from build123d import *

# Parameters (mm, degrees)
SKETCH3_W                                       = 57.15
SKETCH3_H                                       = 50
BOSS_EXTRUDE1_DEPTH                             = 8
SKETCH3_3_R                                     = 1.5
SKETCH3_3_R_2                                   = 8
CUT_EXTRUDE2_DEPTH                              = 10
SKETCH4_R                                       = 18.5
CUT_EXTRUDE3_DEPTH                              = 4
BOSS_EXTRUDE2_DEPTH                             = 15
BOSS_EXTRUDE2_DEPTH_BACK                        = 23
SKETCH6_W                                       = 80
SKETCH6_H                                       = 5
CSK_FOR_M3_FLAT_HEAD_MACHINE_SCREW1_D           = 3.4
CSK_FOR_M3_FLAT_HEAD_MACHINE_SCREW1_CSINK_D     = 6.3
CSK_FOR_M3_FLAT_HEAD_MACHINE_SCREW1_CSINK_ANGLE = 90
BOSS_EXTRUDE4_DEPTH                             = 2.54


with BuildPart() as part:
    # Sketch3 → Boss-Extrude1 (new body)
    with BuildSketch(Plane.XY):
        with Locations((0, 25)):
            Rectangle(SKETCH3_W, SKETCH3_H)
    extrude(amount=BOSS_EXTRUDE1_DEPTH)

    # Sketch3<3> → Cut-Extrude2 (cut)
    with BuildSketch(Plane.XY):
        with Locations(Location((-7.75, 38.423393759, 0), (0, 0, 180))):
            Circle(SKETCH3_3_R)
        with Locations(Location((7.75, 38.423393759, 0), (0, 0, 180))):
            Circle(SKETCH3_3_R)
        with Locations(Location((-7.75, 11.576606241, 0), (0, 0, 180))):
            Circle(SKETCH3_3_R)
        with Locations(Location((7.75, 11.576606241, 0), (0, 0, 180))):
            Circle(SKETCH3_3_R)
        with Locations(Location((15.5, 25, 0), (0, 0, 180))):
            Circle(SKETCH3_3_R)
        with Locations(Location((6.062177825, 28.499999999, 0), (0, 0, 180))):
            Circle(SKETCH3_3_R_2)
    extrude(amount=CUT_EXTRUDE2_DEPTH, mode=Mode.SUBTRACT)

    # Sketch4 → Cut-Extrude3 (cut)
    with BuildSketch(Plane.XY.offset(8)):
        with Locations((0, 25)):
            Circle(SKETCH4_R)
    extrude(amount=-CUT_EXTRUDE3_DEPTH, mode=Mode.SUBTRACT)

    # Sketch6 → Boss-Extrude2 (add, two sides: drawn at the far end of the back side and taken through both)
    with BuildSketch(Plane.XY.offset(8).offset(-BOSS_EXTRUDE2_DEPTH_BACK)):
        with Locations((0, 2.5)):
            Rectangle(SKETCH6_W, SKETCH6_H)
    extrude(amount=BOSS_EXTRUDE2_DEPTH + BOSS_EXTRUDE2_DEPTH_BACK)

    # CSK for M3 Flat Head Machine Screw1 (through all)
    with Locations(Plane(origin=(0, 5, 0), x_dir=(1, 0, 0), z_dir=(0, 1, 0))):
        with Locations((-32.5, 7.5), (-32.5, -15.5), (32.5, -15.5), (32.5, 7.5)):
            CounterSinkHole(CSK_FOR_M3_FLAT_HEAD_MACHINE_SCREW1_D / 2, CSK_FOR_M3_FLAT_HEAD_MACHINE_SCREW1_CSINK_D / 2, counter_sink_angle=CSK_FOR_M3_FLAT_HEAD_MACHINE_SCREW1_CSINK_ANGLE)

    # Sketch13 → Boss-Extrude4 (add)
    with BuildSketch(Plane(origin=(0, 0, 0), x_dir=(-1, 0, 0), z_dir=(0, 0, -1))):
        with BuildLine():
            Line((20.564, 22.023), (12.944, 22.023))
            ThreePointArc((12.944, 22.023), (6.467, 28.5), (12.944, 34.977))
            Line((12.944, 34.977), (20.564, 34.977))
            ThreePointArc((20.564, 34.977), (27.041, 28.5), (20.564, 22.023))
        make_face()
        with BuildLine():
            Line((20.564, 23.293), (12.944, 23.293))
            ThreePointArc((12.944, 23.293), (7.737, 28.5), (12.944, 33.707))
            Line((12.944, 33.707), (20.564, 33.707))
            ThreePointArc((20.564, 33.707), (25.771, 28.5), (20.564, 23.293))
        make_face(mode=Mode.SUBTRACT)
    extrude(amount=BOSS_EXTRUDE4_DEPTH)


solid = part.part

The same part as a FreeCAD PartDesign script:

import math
import FreeCAD as App
import Part
import Sketcher
Q = App.Units.Quantity

doc = App.newDocument("Part")
body = doc.addObject("PartDesign::Body", "Body")

# Sketch on XY plane
sketch1 = body.newObject("Sketcher::SketchObject", "Sketch")
sketch1.AttachmentSupport = (doc.getObject("XY_Plane"), [""])
sketch1.MapMode = "FlatFace"
sketch1.addGeometry([
    Part.LineSegment(App.Vector(-29, 50, 0), App.Vector(-29, 0, 0)),
    Part.LineSegment(App.Vector(-29, 0, 0), App.Vector(29, 0, 0)),
    Part.LineSegment(App.Vector(29, 0, 0), App.Vector(29, 50, 0)),
    Part.LineSegment(App.Vector(29, 50, 0), App.Vector(-29, 50, 0)),
], False)
sketch1.addConstraint([
    Sketcher.Constraint("Coincident", 0, 2, 1, 1),
    Sketcher.Constraint("Coincident", 1, 2, 2, 1),
    Sketcher.Constraint("Coincident", 2, 2, 3, 1),
    Sketcher.Constraint("Coincident", 3, 2, 0, 1),
    Sketcher.Constraint("Vertical", 0),
    Sketcher.Constraint("Horizontal", 1),
    Sketcher.Constraint("Vertical", 2),
    Sketcher.Constraint("Horizontal", 3),
    Sketcher.Constraint("Symmetric", 0, 2, 1, 2, -1, 1),
    Sketcher.Constraint("DistanceY", 0, 2, 0, 1, Q("50 mm")),
    Sketcher.Constraint("DistanceX", 1, 1, 1, 2, Q("57.15 mm")),
])
pad1 = body.newObject("PartDesign::Pad", "Pad")
pad1.Profile = sketch1
pad1.Length = 8

# Sketch on XY plane
sketch2 = body.newObject("Sketcher::SketchObject", "Sketch001")
sketch2.AttachmentSupport = (doc.getObject("XY_Plane"), [""])
sketch2.MapMode = "FlatFace"
sketch2.addGeometry([
    Part.Circle(App.Vector(-7.8, 38.4, 0), App.Vector(0, 0, 1), 1.5),  # 0
    Part.Circle(App.Vector(7.8, 38.4, 0), App.Vector(0, 0, 1), 1.5),  # 1
    Part.Circle(App.Vector(-7.8, 11.6, 0), App.Vector(0, 0, 1), 1.5),  # 2
    Part.Circle(App.Vector(7.8, 11.6, 0), App.Vector(0, 0, 1), 1.5),  # 3
    Part.Circle(App.Vector(15.5, 25, 0), App.Vector(0, 0, 1), 1.5),  # 4
    Part.Circle(App.Vector(6.1, 28.5, 0), App.Vector(0, 0, 1), 8),  # 5
], False)
sketch2.addConstraint([
    Sketcher.Constraint("Equal", 0, 1),
    Sketcher.Constraint("Equal", 1, 2),
    Sketcher.Constraint("Equal", 2, 3),
    Sketcher.Constraint("Equal", 3, 4),
    Sketcher.Constraint("Symmetric", 0, 3, 1, 3, -2),
    Sketcher.Constraint("Symmetric", 2, 3, 3, 3, -2),
    Sketcher.Constraint("Vertical", 0, 3, 2, 3),
    Sketcher.Constraint("Diameter", 0, Q("3 mm")),
    Sketcher.Constraint("Diameter", 5, Q("16 mm")),
    Sketcher.Constraint("DistanceY", -1, 1, 4, 3, Q("25 mm")),
    Sketcher.Constraint("DistanceX", -1, 1, 4, 3, Q("15.5 mm")),
    Sketcher.Constraint("DistanceY", -1, 1, 5, 3, Q("28.5 mm")),
    Sketcher.Constraint("DistanceX", 0, 3, 1, 3, Q("15.5 mm")),
    Sketcher.Constraint("DistanceY", -1, 1, 0, 3, Q("38.423394 mm")),
    Sketcher.Constraint("DistanceY", -1, 1, 2, 3, Q("11.576606 mm")),
    Sketcher.Constraint("DistanceX", -1, 1, 5, 3, Q("6.062178 mm")),
])
pocket1 = body.newObject("PartDesign::Pocket", "Pocket")
pocket1.Profile = sketch2
pocket1.Length = 10
pocket1.Reversed = True

# Sketch on XY plane
sketch3 = body.newObject("Sketcher::SketchObject", "Sketch002")
sketch3.AttachmentSupport = (doc.getObject("XY_Plane"), [""])
sketch3.MapMode = "FlatFace"
sketch3.AttachmentOffset = App.Placement(App.Vector(0, 0, 8), App.Rotation())
sketch3.addGeometry(Part.Circle(App.Vector(0, 25, 0), App.Vector(0, 0, 1), 18), False)
sketch3.addConstraint([
    Sketcher.Constraint("PointOnObject", 0, 3, -2),
    Sketcher.Constraint("Diameter", 0, Q("37 mm")),
    Sketcher.Constraint("DistanceY", -1, 1, 0, 3, Q("25 mm")),
])
pocket2 = body.newObject("PartDesign::Pocket", "Pocket001")
pocket2.Profile = sketch3
pocket2.Length = 4

# Sketch on XY plane
sketch4 = body.newObject("Sketcher::SketchObject", "Sketch003")
sketch4.AttachmentSupport = (doc.getObject("XY_Plane"), [""])
sketch4.MapMode = "FlatFace"
sketch4.AttachmentOffset = App.Placement(App.Vector(0, 0, 8), App.Rotation())
sketch4.addGeometry([
    Part.LineSegment(App.Vector(-40, 5, 0), App.Vector(-40, 0, 0)),
    Part.LineSegment(App.Vector(-40, 0, 0), App.Vector(40, 0, 0)),
    Part.LineSegment(App.Vector(40, 0, 0), App.Vector(40, 5, 0)),
    Part.LineSegment(App.Vector(40, 5, 0), App.Vector(-40, 5, 0)),
], False)
sketch4.addConstraint([
    Sketcher.Constraint("Coincident", 0, 2, 1, 1),
    Sketcher.Constraint("Coincident", 1, 2, 2, 1),
    Sketcher.Constraint("Coincident", 2, 2, 3, 1),
    Sketcher.Constraint("Coincident", 3, 2, 0, 1),
    Sketcher.Constraint("Vertical", 0),
    Sketcher.Constraint("Horizontal", 1),
    Sketcher.Constraint("Vertical", 2),
    Sketcher.Constraint("Horizontal", 3),
    Sketcher.Constraint("Symmetric", 0, 2, 1, 2, -1, 1),
    Sketcher.Constraint("DistanceX", 1, 1, 1, 2, Q("80 mm")),
    Sketcher.Constraint("DistanceY", 0, 2, 0, 1, Q("5 mm")),
])
pad2 = body.newObject("PartDesign::Pad", "Pad001")
pad2.Profile = sketch4
pad2.Type = "TwoLengths"
pad2.Length = 15
pad2.Length2 = 23

# Sketch on XZ plane
sketch5 = body.newObject("Sketcher::SketchObject", "Sketch004")
sketch5.AttachmentSupport = (doc.getObject("XZ_Plane"), [""])
sketch5.MapMode = "FlatFace"
sketch5.AttachmentOffset = App.Placement(App.Vector(0, 0, -5), App.Rotation())
sketch5.addGeometry([
    Part.Circle(App.Vector(-32.5, -7.5, 0), App.Vector(0, 0, 1), 1.7),
    Part.Circle(App.Vector(-32.5, 15.5, 0), App.Vector(0, 0, 1), 1.7),
    Part.Circle(App.Vector(32.5, 15.5, 0), App.Vector(0, 0, 1), 1.7),
    Part.Circle(App.Vector(32.5, -7.5, 0), App.Vector(0, 0, 1), 1.7),
], False)
sketch5.addConstraint([
    Sketcher.Constraint("Equal", 0, 1),
    Sketcher.Constraint("Equal", 1, 2),
    Sketcher.Constraint("Equal", 2, 3),
    Sketcher.Constraint("Symmetric", 1, 3, 2, 3, -2),
    Sketcher.Constraint("Symmetric", 0, 3, 3, 3, -2),
    Sketcher.Constraint("Vertical", 0, 3, 1, 3),
    Sketcher.Constraint("Diameter", 0, Q("3.4 mm")),
    Sketcher.Constraint("DistanceY", 0, 3, 1, 3, Q("23 mm")),
    Sketcher.Constraint("DistanceX", 1, 3, 2, 3, Q("65 mm")),
    Sketcher.Constraint("DistanceY", 0, 3, -1, 1, Q("7.5 mm")),
])
doc.recompute()
hole = body.newObject("PartDesign::Hole", "Hole")
hole.Profile = sketch5
hole.ThreadType = "None"
hole.Diameter = 3.4
hole.DepthType = "ThroughAll"
hole.HoleCutType = "Countersink"
hole.HoleCutDiameter = 6.3
hole.HoleCutCountersinkAngle = 90
hole.Reversed = True

# Sketch on XY plane
sketch6 = body.newObject("Sketcher::SketchObject", "Sketch005")
sketch6.AttachmentSupport = (doc.getObject("XY_Plane"), [""])
sketch6.MapMode = "FlatFace"
sketch6.addGeometry([
    Part.LineSegment(App.Vector(-13, 22, 0), App.Vector(-21, 22, 0)),  # 0
    Part.ArcOfCircle(Part.Circle(App.Vector(-21, 28, 0), App.Vector(0, 0, 1), 6), math.radians(90), math.radians(270)),  # 1
    Part.LineSegment(App.Vector(-21, 35, 0), App.Vector(-13, 35, 0)),  # 2
    Part.ArcOfCircle(Part.Circle(App.Vector(-13, 28, 0), App.Vector(0, 0, 1), 6), math.radians(-90), math.radians(90)),  # 3
    Part.LineSegment(App.Vector(-21, 23, 0), App.Vector(-13, 23, 0)),  # 4
    Part.ArcOfCircle(Part.Circle(App.Vector(-13, 28, 0), App.Vector(0, 0, 1), 5), math.radians(-90), math.radians(90)),  # 5
    Part.LineSegment(App.Vector(-13, 34, 0), App.Vector(-21, 34, 0)),  # 6
    Part.ArcOfCircle(Part.Circle(App.Vector(-21, 28, 0), App.Vector(0, 0, 1), 5), math.radians(90), math.radians(270)),  # 7
], False)
sketch6.addConstraint([
    Sketcher.Constraint("Tangent", 0, 2, 1, 2),
    Sketcher.Constraint("Tangent", 1, 1, 2, 1),
    Sketcher.Constraint("Tangent", 2, 2, 3, 2),
    Sketcher.Constraint("Tangent", 3, 1, 0, 1),
    Sketcher.Constraint("Tangent", 4, 2, 5, 1),
    Sketcher.Constraint("Tangent", 5, 2, 6, 1),
    Sketcher.Constraint("Tangent", 6, 2, 7, 1),
    Sketcher.Constraint("Tangent", 7, 2, 4, 1),
    Sketcher.Constraint("Horizontal", 0),
    Sketcher.Constraint("Horizontal", 2),
    Sketcher.Constraint("Horizontal", 4),
    Sketcher.Constraint("Horizontal", 6),
    Sketcher.Constraint("Coincident", 5, 3, 3, 3),
    Sketcher.Constraint("Vertical", 7, 3, 0, 2),
    Sketcher.Constraint("Radius", 1, Q("6.477 mm")),
    Sketcher.Constraint("Radius", 5, Q("5.207 mm")),
    Sketcher.Constraint("DistanceX", 0, 2, 0, 1, Q("7.62 mm")),
    Sketcher.Constraint("DistanceY", -1, 1, 1, 3, Q("28.5 mm")),
    Sketcher.Constraint("DistanceX", 1, 3, -1, 1, Q("20.564 mm")),
])
pad3 = body.newObject("PartDesign::Pad", "Pad002")
pad3.Profile = sketch6
pad3.Length = 2.54
pad3.Reversed = True

doc.recompute()
